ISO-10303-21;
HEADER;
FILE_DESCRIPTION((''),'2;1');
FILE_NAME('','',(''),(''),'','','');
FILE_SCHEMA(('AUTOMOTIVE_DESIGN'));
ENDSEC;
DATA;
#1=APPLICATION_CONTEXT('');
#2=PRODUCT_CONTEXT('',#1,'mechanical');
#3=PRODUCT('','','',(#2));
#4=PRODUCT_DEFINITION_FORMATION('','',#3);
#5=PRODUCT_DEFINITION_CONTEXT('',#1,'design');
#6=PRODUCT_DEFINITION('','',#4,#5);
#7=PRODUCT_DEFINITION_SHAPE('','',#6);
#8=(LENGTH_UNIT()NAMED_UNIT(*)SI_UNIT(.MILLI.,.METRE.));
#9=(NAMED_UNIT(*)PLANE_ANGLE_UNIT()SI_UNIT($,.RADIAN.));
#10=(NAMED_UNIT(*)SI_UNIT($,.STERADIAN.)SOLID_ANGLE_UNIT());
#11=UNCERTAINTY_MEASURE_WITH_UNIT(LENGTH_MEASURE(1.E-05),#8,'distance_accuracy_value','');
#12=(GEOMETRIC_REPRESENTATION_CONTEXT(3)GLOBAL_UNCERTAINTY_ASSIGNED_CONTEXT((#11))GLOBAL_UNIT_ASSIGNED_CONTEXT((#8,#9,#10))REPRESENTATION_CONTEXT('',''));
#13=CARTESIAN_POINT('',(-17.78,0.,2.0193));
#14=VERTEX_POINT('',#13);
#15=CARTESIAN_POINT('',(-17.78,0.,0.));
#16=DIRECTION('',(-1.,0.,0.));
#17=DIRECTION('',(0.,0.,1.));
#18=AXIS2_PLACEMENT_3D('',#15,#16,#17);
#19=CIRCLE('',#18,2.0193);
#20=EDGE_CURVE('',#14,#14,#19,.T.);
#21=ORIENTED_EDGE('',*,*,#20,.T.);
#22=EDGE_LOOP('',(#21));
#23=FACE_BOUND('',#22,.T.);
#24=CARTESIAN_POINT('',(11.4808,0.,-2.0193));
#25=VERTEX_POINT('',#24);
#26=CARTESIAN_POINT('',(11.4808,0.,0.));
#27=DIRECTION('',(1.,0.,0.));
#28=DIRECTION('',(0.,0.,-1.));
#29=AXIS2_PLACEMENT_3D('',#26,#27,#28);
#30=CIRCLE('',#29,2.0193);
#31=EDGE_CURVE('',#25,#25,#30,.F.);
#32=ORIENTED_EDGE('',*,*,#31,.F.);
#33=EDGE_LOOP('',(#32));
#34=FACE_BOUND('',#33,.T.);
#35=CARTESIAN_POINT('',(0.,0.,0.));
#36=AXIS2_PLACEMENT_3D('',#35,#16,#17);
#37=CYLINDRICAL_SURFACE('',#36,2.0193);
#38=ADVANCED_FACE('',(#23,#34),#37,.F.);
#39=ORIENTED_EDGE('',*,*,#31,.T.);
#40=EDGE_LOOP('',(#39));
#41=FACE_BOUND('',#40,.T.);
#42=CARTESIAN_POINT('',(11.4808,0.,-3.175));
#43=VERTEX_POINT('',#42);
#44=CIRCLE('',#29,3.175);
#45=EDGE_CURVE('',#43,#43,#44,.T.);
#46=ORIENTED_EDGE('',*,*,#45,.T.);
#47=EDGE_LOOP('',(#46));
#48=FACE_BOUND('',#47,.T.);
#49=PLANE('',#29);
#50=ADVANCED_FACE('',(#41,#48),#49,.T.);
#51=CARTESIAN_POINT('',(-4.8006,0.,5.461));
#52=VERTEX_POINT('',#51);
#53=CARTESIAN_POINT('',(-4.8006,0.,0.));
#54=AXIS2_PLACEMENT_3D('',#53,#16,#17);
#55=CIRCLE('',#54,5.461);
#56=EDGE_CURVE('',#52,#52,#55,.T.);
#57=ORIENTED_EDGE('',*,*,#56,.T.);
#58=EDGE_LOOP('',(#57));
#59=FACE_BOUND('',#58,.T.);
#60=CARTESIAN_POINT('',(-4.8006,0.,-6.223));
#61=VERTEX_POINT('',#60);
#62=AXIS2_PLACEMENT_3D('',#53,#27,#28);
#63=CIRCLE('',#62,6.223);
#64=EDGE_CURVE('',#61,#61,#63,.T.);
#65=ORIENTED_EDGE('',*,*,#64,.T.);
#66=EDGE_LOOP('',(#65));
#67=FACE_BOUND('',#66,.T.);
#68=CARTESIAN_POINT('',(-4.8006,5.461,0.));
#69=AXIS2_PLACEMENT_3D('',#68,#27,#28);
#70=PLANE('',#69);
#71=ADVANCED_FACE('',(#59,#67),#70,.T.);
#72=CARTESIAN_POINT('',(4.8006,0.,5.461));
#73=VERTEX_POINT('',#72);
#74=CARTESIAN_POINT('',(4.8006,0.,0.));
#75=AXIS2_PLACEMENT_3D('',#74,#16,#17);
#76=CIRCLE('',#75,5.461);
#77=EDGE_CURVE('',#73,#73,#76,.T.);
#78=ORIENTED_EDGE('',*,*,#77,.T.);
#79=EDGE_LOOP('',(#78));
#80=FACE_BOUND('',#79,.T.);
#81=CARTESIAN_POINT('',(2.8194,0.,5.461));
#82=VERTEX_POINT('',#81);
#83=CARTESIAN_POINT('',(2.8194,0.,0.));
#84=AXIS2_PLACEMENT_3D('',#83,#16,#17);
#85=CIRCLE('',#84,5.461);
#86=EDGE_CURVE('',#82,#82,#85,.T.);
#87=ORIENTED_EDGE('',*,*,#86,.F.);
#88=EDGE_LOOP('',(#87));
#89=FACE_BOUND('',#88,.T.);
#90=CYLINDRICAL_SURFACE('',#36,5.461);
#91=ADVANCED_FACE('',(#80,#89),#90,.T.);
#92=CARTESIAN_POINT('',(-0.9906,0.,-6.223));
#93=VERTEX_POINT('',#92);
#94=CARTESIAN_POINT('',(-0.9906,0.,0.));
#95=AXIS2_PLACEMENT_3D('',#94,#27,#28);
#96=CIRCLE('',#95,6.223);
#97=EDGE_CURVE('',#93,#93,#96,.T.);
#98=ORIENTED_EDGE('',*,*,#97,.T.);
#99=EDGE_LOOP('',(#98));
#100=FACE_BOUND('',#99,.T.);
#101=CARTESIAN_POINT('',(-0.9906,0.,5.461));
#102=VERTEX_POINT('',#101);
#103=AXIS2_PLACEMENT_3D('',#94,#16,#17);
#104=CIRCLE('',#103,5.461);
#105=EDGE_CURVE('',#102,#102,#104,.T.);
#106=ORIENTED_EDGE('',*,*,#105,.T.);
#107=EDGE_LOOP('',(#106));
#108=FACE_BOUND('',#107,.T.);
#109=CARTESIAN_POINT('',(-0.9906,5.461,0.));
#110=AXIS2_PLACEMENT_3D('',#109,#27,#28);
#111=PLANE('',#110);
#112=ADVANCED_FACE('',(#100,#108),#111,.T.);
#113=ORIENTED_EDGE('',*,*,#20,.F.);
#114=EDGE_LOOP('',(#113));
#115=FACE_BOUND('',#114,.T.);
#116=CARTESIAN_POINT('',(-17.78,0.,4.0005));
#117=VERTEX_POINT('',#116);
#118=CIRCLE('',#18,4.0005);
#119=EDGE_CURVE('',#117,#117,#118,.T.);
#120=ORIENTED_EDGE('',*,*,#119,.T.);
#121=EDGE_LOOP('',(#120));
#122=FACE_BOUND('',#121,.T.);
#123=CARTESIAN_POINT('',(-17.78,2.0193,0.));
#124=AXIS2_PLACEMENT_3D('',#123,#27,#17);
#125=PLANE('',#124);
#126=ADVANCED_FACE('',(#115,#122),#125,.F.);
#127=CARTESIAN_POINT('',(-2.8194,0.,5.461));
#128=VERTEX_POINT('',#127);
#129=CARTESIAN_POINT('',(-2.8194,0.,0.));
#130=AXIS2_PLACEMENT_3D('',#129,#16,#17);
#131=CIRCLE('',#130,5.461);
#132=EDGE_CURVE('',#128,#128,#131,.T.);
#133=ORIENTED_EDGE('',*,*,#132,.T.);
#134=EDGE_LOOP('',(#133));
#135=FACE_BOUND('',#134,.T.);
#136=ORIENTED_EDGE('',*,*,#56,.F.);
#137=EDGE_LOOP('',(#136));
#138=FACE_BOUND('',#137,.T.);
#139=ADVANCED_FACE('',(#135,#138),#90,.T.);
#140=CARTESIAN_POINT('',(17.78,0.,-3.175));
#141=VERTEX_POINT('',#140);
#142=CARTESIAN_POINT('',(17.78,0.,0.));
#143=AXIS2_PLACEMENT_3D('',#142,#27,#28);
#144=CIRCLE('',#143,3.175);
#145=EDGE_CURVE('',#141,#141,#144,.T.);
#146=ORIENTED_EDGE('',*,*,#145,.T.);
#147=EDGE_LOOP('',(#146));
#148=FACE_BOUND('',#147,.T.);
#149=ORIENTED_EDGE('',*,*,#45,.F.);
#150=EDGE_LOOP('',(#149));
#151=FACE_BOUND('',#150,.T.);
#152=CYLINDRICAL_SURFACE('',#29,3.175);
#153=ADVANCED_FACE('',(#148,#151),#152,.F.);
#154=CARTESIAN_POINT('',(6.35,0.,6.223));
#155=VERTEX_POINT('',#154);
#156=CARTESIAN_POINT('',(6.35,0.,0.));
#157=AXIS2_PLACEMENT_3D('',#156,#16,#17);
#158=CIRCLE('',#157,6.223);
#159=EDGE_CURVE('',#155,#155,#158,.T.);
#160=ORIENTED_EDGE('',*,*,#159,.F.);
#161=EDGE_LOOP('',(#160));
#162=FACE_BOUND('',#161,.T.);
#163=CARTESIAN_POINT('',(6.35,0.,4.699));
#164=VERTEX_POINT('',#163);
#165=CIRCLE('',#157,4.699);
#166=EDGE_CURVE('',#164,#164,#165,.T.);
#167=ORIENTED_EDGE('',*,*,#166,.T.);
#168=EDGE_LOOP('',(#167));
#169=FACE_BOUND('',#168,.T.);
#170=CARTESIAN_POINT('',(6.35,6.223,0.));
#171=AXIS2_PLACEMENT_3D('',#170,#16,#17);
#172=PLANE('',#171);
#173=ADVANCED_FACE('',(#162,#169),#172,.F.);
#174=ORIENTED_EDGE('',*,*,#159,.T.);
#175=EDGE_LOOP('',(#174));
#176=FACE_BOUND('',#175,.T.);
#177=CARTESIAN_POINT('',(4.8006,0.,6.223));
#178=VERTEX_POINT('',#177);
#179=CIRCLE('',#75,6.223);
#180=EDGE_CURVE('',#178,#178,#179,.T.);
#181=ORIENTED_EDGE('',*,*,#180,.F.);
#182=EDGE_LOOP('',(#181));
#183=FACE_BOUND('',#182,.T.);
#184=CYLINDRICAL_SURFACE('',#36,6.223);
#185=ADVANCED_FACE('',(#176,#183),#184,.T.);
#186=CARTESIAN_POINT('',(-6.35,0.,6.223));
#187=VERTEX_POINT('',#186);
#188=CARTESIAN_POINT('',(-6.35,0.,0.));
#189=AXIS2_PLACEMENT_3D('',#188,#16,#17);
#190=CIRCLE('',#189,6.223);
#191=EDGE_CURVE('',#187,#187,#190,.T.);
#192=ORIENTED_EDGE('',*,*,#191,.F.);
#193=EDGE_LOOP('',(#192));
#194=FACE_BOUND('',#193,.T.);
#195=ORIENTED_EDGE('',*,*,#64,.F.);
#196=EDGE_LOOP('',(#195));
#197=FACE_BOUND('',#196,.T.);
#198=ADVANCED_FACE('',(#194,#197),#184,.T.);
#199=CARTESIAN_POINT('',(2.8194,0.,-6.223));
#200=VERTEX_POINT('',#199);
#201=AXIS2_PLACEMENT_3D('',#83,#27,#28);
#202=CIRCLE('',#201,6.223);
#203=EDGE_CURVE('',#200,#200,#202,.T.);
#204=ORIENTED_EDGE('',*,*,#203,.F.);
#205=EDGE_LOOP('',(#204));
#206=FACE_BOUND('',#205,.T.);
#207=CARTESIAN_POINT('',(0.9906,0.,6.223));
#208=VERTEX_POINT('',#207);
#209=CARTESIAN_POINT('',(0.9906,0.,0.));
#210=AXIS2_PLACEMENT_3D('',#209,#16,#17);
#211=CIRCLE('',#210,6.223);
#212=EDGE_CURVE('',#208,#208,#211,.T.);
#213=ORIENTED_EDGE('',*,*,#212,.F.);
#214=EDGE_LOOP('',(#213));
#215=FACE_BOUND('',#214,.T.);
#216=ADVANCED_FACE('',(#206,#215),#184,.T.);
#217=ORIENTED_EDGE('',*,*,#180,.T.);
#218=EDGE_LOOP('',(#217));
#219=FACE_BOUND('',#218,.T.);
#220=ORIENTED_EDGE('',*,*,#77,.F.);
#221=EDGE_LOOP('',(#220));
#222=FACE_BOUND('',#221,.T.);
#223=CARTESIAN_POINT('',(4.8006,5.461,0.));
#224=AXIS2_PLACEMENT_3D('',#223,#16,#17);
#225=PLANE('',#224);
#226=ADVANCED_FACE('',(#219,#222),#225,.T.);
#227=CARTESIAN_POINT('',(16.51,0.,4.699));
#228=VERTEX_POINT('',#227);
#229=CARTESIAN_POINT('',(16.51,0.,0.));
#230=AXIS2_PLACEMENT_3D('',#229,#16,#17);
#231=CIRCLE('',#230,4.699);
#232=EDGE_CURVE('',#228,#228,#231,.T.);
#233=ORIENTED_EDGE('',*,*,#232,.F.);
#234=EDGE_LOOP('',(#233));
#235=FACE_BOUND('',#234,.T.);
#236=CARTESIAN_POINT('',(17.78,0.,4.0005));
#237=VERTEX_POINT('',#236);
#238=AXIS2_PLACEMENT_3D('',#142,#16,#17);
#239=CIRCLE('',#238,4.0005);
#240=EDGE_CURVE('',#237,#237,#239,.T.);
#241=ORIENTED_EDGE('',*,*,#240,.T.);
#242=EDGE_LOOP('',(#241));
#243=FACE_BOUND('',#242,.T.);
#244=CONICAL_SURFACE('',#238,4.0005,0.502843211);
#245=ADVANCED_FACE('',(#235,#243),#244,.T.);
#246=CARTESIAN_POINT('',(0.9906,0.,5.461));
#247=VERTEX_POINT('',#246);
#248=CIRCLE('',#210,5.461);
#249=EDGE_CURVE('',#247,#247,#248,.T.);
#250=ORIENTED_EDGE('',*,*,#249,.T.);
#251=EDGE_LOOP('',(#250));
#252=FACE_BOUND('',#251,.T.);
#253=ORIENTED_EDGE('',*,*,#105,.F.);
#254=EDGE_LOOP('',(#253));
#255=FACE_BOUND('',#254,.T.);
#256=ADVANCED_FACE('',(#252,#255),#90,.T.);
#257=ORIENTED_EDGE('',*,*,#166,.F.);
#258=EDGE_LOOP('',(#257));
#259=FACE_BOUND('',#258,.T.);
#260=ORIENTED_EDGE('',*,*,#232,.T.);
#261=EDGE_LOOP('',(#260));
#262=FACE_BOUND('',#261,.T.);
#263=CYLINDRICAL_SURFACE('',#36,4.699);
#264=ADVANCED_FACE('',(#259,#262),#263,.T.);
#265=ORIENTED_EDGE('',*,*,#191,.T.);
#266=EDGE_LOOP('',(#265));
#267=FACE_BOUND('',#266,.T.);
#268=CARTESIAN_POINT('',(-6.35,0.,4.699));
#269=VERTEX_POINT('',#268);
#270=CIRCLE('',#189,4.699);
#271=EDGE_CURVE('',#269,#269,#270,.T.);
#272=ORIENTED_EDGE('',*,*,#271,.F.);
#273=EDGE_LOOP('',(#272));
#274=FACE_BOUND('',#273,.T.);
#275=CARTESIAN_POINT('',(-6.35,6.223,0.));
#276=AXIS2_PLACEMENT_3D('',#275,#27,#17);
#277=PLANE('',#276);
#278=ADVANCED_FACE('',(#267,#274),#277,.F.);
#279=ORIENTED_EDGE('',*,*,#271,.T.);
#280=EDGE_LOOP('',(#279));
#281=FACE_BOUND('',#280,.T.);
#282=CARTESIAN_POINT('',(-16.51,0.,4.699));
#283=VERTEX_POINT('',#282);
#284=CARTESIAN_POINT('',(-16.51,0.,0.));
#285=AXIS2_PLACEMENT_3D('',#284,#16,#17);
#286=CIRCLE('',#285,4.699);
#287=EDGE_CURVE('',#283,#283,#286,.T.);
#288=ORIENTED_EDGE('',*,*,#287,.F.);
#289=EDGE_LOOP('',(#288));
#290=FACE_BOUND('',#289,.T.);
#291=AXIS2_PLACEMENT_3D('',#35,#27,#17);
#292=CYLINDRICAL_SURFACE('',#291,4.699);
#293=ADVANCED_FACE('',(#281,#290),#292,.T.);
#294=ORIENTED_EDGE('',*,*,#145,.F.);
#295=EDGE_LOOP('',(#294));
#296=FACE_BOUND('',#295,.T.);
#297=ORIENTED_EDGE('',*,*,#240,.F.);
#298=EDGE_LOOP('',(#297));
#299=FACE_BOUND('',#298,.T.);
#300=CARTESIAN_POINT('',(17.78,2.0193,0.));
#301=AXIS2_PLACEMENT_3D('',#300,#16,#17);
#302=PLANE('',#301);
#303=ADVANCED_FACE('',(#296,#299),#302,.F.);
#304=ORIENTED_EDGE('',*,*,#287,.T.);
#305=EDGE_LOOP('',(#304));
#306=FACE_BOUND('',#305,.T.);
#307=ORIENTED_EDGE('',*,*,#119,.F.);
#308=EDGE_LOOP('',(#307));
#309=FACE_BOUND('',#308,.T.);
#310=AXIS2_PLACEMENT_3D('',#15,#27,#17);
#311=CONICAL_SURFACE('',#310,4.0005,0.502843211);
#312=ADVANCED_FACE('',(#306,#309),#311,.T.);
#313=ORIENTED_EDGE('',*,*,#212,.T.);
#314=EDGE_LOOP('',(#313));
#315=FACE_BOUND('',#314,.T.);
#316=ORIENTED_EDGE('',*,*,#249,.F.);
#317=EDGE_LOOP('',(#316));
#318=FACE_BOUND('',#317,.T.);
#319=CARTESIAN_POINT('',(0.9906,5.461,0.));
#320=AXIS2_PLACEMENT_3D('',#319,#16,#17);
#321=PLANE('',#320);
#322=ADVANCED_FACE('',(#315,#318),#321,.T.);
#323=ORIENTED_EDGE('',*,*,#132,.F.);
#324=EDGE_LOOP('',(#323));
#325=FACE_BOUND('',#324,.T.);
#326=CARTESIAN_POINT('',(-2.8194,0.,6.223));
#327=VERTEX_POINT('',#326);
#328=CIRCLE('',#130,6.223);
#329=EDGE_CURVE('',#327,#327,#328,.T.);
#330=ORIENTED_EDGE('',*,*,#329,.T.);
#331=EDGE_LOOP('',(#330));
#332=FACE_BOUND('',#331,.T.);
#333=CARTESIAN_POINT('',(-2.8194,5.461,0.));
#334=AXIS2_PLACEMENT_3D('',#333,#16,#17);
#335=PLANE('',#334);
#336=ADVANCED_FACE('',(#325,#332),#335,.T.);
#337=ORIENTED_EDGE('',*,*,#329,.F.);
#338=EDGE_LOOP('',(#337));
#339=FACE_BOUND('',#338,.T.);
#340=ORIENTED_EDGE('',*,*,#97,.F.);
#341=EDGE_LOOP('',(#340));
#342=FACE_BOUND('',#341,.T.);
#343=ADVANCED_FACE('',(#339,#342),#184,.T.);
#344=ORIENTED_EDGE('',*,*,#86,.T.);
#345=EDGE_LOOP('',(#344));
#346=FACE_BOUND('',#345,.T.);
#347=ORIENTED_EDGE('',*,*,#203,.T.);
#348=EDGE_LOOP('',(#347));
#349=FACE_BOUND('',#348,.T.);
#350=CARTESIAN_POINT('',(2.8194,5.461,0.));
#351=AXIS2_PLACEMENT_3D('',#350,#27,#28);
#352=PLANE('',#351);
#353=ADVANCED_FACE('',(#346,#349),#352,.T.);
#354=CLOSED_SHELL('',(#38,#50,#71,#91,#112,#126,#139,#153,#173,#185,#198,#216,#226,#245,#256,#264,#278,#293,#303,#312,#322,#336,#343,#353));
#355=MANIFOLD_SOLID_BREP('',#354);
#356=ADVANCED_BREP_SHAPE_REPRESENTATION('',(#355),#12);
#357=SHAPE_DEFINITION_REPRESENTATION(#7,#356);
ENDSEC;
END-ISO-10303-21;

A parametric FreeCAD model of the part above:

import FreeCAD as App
import Part
import Sketcher
Q = App.Units.Quantity

doc = App.newDocument("Part")
body = doc.addObject("PartDesign::Body", "Body")

# Sketch on XY plane
sketch1 = body.newObject("Sketcher::SketchObject", "Sketch")
sketch1.AttachmentSupport = (doc.getObject("XY_Plane"), [""])
sketch1.MapMode = "FlatFace"
sketch1.addGeometry([
    Part.LineSegment(App.Vector(0, 2, 0), App.Vector(17.8, 2, 0)),  # 0
    Part.LineSegment(App.Vector(17.8, 2, 0), App.Vector(17.8, 4, 0)),  # 1
    Part.LineSegment(App.Vector(17.8, 4, 0), App.Vector(16.5, 4.7, 0)),  # 2
    Part.LineSegment(App.Vector(16.5, 4.7, 0), App.Vector(6.3, 4.7, 0)),  # 3
    Part.LineSegment(App.Vector(6.3, 4.7, 0), App.Vector(6.3, 6.2, 0)),  # 4
    Part.LineSegment(App.Vector(6.3, 6.2, 0), App.Vector(0, 6.2, 0)),  # 5
    Part.LineSegment(App.Vector(0, 6.2, 0), App.Vector(0, 2, 0)),  # 6
], False)
sketch1.addConstraint([
    Sketcher.Constraint("Coincident", 0, 2, 1, 1),
    Sketcher.Constraint("Coincident", 1, 2, 2, 1),
    Sketcher.Constraint("Coincident", 2, 2, 3, 1),
    Sketcher.Constraint("Coincident", 3, 2, 4, 1),
    Sketcher.Constraint("Coincident", 4, 2, 5, 1),
    Sketcher.Constraint("Coincident", 5, 2, 6, 1),
    Sketcher.Constraint("Coincident", 6, 2, 0, 1),
    Sketcher.Constraint("Horizontal", 0),
    Sketcher.Constraint("Vertical", 1),
    Sketcher.Constraint("Horizontal", 3),
    Sketcher.Constraint("Vertical", 4),
    Sketcher.Constraint("Horizontal", 5),
    Sketcher.Constraint("Vertical", 6),
    Sketcher.Constraint("PointOnObject", 5, 2, -2),
    Sketcher.Constraint("DistanceX", 0, 1, 0, 2, Q("0.7 in")),
    Sketcher.Constraint("DistanceX", 3, 2, 3, 1, Q("0.4 in")),
    Sketcher.Constraint("DistanceX", 5, 2, 5, 1, Q("0.25 in")),
    Sketcher.Constraint("DistanceY", 4, 1, 4, 2, Q("0.06 in")),
    Sketcher.Constraint("DistanceY", 1, 1, 1, 2, Q("0.078 in")),
    Sketcher.Constraint("DistanceY", 6, 2, 6, 1, Q("0.1655 in")),
    Sketcher.Constraint("DistanceY", -1, 1, 2, 2, Q("0.185 in")),
])
revolution = body.newObject("PartDesign::Revolution", "Revolution")
revolution.Profile = sketch1
revolution.ReferenceAxis = (sketch1, ["H_Axis"])
revolution.Angle = 360
doc.recompute()

mirrored = body.newObject("PartDesign::Mirrored", "Mirrored")
mirrored.Originals = [revolution]
mirrored.MirrorPlane = (doc.getObject("YZ_Plane"), [""])
body.Tip = mirrored

# Sketch on XY plane
sketch2 = body.newObject("Sketcher::SketchObject", "Sketch001")
sketch2.AttachmentSupport = (doc.getObject("XY_Plane"), [""])
sketch2.MapMode = "FlatFace"
sketch2.addGeometry([
    Part.LineSegment(App.Vector(-1, 7, 0), App.Vector(-1, 5.5, 0)),  # 0
    Part.LineSegment(App.Vector(-1, 5.5, 0), App.Vector(1, 5.5, 0)),  # 1
    Part.LineSegment(App.Vector(1, 5.5, 0), App.Vector(1, 7, 0)),  # 2
    Part.LineSegment(App.Vector(1, 7, 0), App.Vector(-1, 7, 0)),  # 3
    Part.LineSegment(App.Vector(-4.8, 7, 0), App.Vector(-4.8, 5.5, 0)),  # 4
    Part.LineSegment(App.Vector(-4.8, 5.5, 0), App.Vector(-2.8, 5.5, 0)),  # 5
    Part.LineSegment(App.Vector(-2.8, 5.5, 0), App.Vector(-2.8, 7, 0)),  # 6
    Part.LineSegment(App.Vector(-2.8, 7, 0), App.Vector(-4.8, 7, 0)),  # 7
    Part.LineSegment(App.Vector(2.8, 7, 0), App.Vector(2.8, 5.5, 0)),  # 8
    Part.LineSegment(App.Vector(2.8, 5.5, 0), App.Vector(4.8, 5.5, 0)),  # 9
    Part.LineSegment(App.Vector(4.8, 5.5, 0), App.Vector(4.8, 7, 0)),  # 10
    Part.LineSegment(App.Vector(4.8, 7, 0), App.Vector(2.8, 7, 0)),  # 11
], False)
sketch2.addConstraint([
    Sketcher.Constraint("Coincident", 0, 2, 1, 1),
    Sketcher.Constraint("Coincident", 1, 2, 2, 1),
    Sketcher.Constraint("Coincident", 2, 2, 3, 1),
    Sketcher.Constraint("Coincident", 3, 2, 0, 1),
    Sketcher.Constraint("Coincident", 4, 2, 5, 1),
    Sketcher.Constraint("Coincident", 5, 2, 6, 1),
    Sketcher.Constraint("Coincident", 6, 2, 7, 1),
    Sketcher.Constraint("Coincident", 7, 2, 4, 1),
    Sketcher.Constraint("Coincident", 8, 2, 9, 1),
    Sketcher.Constraint("Coincident", 9, 2, 10, 1),
    Sketcher.Constraint("Coincident", 10, 2, 11, 1),
    Sketcher.Constraint("Coincident", 11, 2, 8, 1),
    Sketcher.Constraint("Vertical", 0),
    Sketcher.Constraint("Horizontal", 1),
    Sketcher.Constraint("Vertical", 2),
    Sketcher.Constraint("Horizontal", 3),
    Sketcher.Constraint("Vertical", 4),
    Sketcher.Constraint("Horizontal", 5),
    Sketcher.Constraint("Vertical", 6),
    Sketcher.Constraint("Horizontal", 7),
    Sketcher.Constraint("Vertical", 8),
    Sketcher.Constraint("Horizontal", 9),
    Sketcher.Constraint("Vertical", 10),
    Sketcher.Constraint("Horizontal", 11),
    Sketcher.Constraint("Symmetric", 5, 2, 8, 2, -2),
    Sketcher.Constraint("Symmetric", 7, 2, 10, 2, -2),
    Sketcher.Constraint("Horizontal", 1, 2, 4, 2),
    Sketcher.Constraint("Horizontal", 3, 2, 6, 2),
    Sketcher.Constraint("Equal", 3, 5),
    Sketcher.Constraint("DistanceY", 0, 2, 0, 1, Q("0.06 in")),
    Sketcher.Constraint("DistanceX", 1, 1, 1, 2, Q("0.078 in")),
    Sketcher.Constraint("DistanceX", 4, 2, 0, 2, Q("0.15 in")),
    Sketcher.Constraint("DistanceX", 0, 2, 8, 2, Q("0.15 in")),
    Sketcher.Constraint("DistanceY", -1, 1, 0, 2, Q("0.215 in")),
])
groove = body.newObject("PartDesign::Groove", "Groove")
groove.Profile = sketch2
groove.ReferenceAxis = (sketch2, ["H_Axis"])
groove.Angle = 360

# Sketch on YZ plane
sketch3 = body.newObject("Sketcher::SketchObject", "Sketch002")
sketch3.AttachmentSupport = (doc.getObject("YZ_Plane"), [""])
sketch3.MapMode = "FlatFace"
sketch3.AttachmentOffset = App.Placement(App.Vector(0, 0, 0.7 * 25.4), App.Rotation())
sketch3.addGeometry(Part.Circle(App.Vector(0, 0, 0), App.Vector(0, 0, 1), 3.2), False)
sketch3.addConstraint([
    Sketcher.Constraint("Coincident", 0, 3, -1, 1),
    Sketcher.Constraint("Diameter", 0, Q("0.25 in")),
])
pocket1 = body.newObject("PartDesign::Pocket", "Pocket")
pocket1.Profile = sketch3
pocket1.Length = Q("0.248 in")

doc.recompute()
